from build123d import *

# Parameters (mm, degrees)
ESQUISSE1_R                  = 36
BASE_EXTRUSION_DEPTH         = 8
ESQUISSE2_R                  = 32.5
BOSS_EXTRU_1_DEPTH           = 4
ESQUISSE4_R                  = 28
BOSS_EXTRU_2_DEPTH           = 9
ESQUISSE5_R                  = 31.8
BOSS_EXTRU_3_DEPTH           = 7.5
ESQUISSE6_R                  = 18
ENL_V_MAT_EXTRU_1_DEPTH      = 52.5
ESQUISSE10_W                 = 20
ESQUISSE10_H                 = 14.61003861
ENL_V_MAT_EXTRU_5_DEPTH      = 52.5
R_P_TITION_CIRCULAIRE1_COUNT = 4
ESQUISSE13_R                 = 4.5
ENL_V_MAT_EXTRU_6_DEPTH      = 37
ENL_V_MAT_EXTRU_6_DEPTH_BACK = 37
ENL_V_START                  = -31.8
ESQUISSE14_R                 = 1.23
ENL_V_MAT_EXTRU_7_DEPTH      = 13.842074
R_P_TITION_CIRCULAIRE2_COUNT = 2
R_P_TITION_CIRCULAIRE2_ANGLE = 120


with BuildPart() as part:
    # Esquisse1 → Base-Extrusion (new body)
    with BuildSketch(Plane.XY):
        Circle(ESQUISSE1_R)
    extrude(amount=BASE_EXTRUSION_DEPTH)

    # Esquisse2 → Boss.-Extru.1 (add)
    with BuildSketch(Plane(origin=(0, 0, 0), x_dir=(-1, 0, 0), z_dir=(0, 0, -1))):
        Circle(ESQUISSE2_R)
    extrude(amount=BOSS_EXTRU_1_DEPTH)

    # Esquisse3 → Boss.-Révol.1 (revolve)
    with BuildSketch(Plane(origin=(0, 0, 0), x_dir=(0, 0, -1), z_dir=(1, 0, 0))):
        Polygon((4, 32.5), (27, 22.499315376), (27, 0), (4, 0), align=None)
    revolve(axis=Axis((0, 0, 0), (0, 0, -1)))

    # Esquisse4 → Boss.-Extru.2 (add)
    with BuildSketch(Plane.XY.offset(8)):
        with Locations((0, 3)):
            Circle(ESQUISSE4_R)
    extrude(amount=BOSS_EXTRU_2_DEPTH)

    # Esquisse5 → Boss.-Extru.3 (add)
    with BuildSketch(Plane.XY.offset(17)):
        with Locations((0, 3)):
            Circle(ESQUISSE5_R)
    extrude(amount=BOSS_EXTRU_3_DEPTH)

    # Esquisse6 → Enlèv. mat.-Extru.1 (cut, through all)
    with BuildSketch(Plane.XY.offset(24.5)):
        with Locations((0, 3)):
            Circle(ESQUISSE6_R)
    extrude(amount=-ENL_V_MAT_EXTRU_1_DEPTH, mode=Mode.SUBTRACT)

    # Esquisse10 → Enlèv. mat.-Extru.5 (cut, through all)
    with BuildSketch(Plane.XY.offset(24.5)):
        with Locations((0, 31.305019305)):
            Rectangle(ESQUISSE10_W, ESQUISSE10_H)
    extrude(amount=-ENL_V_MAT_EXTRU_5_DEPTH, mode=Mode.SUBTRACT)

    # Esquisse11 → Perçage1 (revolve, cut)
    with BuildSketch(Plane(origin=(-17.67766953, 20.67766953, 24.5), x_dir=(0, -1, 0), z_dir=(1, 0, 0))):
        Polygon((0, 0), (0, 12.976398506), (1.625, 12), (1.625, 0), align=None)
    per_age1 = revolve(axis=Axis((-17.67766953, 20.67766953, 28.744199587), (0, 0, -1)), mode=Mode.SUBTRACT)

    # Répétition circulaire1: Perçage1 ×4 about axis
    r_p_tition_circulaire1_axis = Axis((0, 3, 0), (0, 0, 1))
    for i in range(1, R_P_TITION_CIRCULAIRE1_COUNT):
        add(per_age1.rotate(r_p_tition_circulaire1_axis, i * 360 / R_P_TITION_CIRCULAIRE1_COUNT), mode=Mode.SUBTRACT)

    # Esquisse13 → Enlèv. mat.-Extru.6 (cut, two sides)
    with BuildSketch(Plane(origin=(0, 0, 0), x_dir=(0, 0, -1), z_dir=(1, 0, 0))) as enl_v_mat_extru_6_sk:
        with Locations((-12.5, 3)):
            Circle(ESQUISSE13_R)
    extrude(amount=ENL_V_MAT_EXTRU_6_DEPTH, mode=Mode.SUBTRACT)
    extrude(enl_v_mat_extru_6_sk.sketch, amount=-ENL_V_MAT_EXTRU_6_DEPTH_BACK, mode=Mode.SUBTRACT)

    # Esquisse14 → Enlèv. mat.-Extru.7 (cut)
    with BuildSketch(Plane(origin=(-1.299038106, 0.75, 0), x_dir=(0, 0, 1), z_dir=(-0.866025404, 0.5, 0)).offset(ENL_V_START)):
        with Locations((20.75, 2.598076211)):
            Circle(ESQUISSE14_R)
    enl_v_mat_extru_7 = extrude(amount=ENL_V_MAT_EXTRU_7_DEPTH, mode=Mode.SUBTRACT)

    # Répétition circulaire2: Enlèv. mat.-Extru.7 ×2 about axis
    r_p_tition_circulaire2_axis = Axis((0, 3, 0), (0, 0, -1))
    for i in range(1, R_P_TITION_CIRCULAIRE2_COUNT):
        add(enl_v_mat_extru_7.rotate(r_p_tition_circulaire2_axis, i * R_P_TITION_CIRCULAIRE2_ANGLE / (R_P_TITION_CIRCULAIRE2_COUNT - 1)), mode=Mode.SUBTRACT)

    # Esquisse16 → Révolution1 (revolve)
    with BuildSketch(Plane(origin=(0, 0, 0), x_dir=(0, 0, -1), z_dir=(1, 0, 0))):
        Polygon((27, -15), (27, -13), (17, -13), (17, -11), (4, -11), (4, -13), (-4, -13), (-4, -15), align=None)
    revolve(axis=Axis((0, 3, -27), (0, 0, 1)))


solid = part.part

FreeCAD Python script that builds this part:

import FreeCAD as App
import Part
import Sketcher

V = App.Vector
Q = App.Units.Quantity


def add_polygon(sketch, points):
    """Adds a closed chain of lines whose ends are joined by coincident constraints."""
    first, n = sketch.GeometryCount, len(points)
    for a, b in zip(points, points[1:] + points[:1]):
        sketch.addGeometry(Part.LineSegment(App.Vector(*a, 0), App.Vector(*b, 0)), False)
    for i in range(n):
        sketch.addConstraint(Sketcher.Constraint("Coincident", first + i, 2, first + (i + 1) % n, 1))

doc = App.newDocument("Part")
body = doc.addObject("PartDesign::Body", "Body")

# Sketch on XY plane
sketch1 = body.newObject("Sketcher::SketchObject", "Sketch")
sketch1.AttachmentSupport = (doc.getObject("XY_Plane"), [""])
sketch1.MapMode = "FlatFace"
sketch1.addGeometry(Part.Circle(V(0, 0, 0), V(0, 0, 1), 36), False)
sketch1.addConstraint([
    Sketcher.Constraint("Coincident", 0, 3, -1, 1),
    Sketcher.Constraint("Diameter", 0, 72.0),
])
pad1 = body.newObject("PartDesign::Pad", "Pad")
pad1.Profile = sketch1
pad1.Length = 8

# Sketch on XY plane
sketch2 = body.newObject("Sketcher::SketchObject", "Sketch001")
sketch2.AttachmentSupport = (doc.getObject("XY_Plane"), [""])
sketch2.MapMode = "FlatFace"
sketch2.addGeometry(Part.Circle(V(0, 0, 0), V(0, 0, 1), 32), False)
sketch2.addConstraint([
    Sketcher.Constraint("Coincident", 0, 3, -1, 1),
    Sketcher.Constraint("Diameter", 0, 65.0),
])
pad2 = body.newObject("PartDesign::Pad", "Pad001")
pad2.Profile = sketch2
pad2.Length = 4
pad2.Reversed = True

# Sketch on YZ plane
sketch3 = body.newObject("Sketcher::SketchObject", "Sketch002")
sketch3.AttachmentSupport = (doc.getObject("YZ_Plane"), [""])
sketch3.MapMode = "FlatFace"
add_polygon(sketch3, [(22, -27), (32, -4), (0, -4), (0, -27)])  # lines 0-3
sketch3.addConstraint([
    Sketcher.Constraint("Horizontal", 1),
    Sketcher.Constraint("Vertical", 2),
    Sketcher.Constraint("Horizontal", 3),
    Sketcher.Constraint("PointOnObject", 1, 2, -2),
    Sketcher.Constraint("DistanceY", 2, 2, 2, 1, 23.0),
    Sketcher.Constraint("DistanceX", 1, 2, 1, 1, 32.5),
    Sketcher.Constraint("DistanceY", 0, 2, -1, 1, 4.0),
    Sketcher.Constraint("Angle", 0, Q("66.5 deg")),
])
revolution = body.newObject("PartDesign::Revolution", "Revolution")
revolution.Profile = sketch3
revolution.ReferenceAxis = (sketch3, ["V_Axis"])
revolution.Angle = 360

# Sketch on XY plane
sketch4 = body.newObject("Sketcher::SketchObject", "Sketch003")
sketch4.AttachmentSupport = (doc.getObject("XY_Plane"), [""])
sketch4.MapMode = "FlatFace"
sketch4.AttachmentOffset = App.Placement(V(0, 0, 8), App.Rotation())
sketch4.addGeometry(Part.Circle(V(0, 3, 0), V(0, 0, 1), 28), False)
sketch4.addConstraint([
    Sketcher.Constraint("PointOnObject", 0, 3, -2),
    Sketcher.Constraint("Diameter", 0, 56.0),
    Sketcher.Constraint("DistanceY", -1, 1, 0, 3, 3.0),
])
pad3 = body.newObject("PartDesign::Pad", "Pad002")
pad3.Profile = sketch4
pad3.Length = 9

# Sketch on XY plane
sketch5 = body.newObject("Sketcher::SketchObject", "Sketch004")
sketch5.AttachmentSupport = (doc.getObject("XY_Plane"), [""])
sketch5.MapMode = "FlatFace"
sketch5.AttachmentOffset = App.Placement(V(0, 0, 17), App.Rotation())
sketch5.addGeometry(Part.Circle(V(0, 3, 0), V(0, 0, 1), 32), False)
sketch5.addConstraint([
    Sketcher.Constraint("PointOnObject", 0, 3, -2),
    Sketcher.Constraint("Diameter", 0, 63.6),
    Sketcher.Constraint("DistanceY", -1, 1, 0, 3, 3.0),
])
pad4 = body.newObject("PartDesign::Pad", "Pad003")
pad4.Profile = sketch5
pad4.Length = 7.5

# Sketch on XY plane
sketch6 = body.newObject("Sketcher::SketchObject", "Sketch005")
sketch6.AttachmentSupport = (doc.getObject("XY_Plane"), [""])
sketch6.MapMode = "FlatFace"
sketch6.AttachmentOffset = App.Placement(V(0, 0, 24.5), App.Rotation())
sketch6.addGeometry(Part.Circle(V(0, 3, 0), V(0, 0, 1), 18), False)
sketch6.addConstraint([
    Sketcher.Constraint("PointOnObject", 0, 3, -2),
    Sketcher.Constraint("Diameter", 0, 36.0),
    Sketcher.Constraint("DistanceY", -1, 1, 0, 3, 3.0),
])
pocket1 = body.newObject("PartDesign::Pocket", "Pocket")
pocket1.Profile = sketch6
pocket1.Type = "ThroughAll"

# Sketch on XY plane
sketch7 = body.newObject("Sketcher::SketchObject", "Sketch006")
sketch7.AttachmentSupport = (doc.getObject("XY_Plane"), [""])
sketch7.MapMode = "FlatFace"
sketch7.AttachmentOffset = App.Placement(V(0, 0, 24.5), App.Rotation())
add_polygon(sketch7, [(-10, 39), (-10, 24), (10, 24), (10, 39)])  # lines 0-3
sketch7.addConstraint([
    Sketcher.Constraint("Vertical", 0),
    Sketcher.Constraint("Horizontal", 1),
    Sketcher.Constraint("Vertical", 2),
    Sketcher.Constraint("Horizontal", 3),
    Sketcher.Constraint("DistanceX", 1, 1, 1, 2, 20.0),
    Sketcher.Constraint("DistanceX", 0, 2, -1, 1, 10.0),
    Sketcher.Constraint("DistanceY", -1, 1, 0, 2, 24.0),
    Sketcher.Constraint("DistanceY", 0, 2, 0, 1, 14.610039),
])
pocket2 = body.newObject("PartDesign::Pocket", "Pocket001")
pocket2.Profile = sketch7
pocket2.Type = "ThroughAll"

# Sketch on YZ plane
sketch8 = body.newObject("Sketcher::SketchObject", "Sketch007")
sketch8.AttachmentSupport = (doc.getObject("YZ_Plane"), [""])
sketch8.MapMode = "FlatFace"
sketch8.AttachmentOffset = App.Placement(V(0, 0, -17.67767), App.Rotation())
add_polygon(sketch8, [(20.7, 11.5), (20.7, 24.5), (19.1, 24.5), (19.1, 12.5)])  # lines 0-3
sketch8.addGeometry(Part.LineSegment(V(20.7, 24.5, 0), V(20.7, 11.5, 0)), True)  # axis
sketch8.addConstraint([
    Sketcher.Constraint("Vertical", 0),
    Sketcher.Constraint("Horizontal", 1),
    Sketcher.Constraint("Vertical", 2),
    Sketcher.Constraint("Vertical", 4),
    Sketcher.Constraint("Coincident", 4, 1, 0, 2),
    Sketcher.Constraint("Equal", 0, 4),
    Sketcher.Constraint("DistanceY", 2, 2, 2, 1, 12.0),
    Sketcher.Constraint("Angle", 3, Q("-31 deg")),
    Sketcher.Constraint("DistanceY", -1, 1, 0, 2, 24.5),
    Sketcher.Constraint("DistanceX", 1, 2, 1, 1, 1.625),
    Sketcher.Constraint("DistanceX", -1, 1, 0, 2, 20.67767),
])
groove = body.newObject("PartDesign::Groove", "Groove")
groove.Profile = sketch8
groove.ReferenceAxis = (sketch8, ["Axis0"])
groove.Angle = 360
doc.recompute()

datumline = body.newObject("PartDesign::Line", "DatumLine")
datumline.Placement = App.Placement(V(0, 3, 0), App.Rotation(V(0, 0, 1), V(0, 0, 1)))
polarpattern = body.newObject("PartDesign::PolarPattern", "PolarPattern")
polarpattern.Originals = [groove]
polarpattern.Axis = (datumline, [""])
polarpattern.Angle = 360
polarpattern.Occurrences = 4
body.Tip = polarpattern

# Sketch on YZ plane
sketch9 = body.newObject("Sketcher::SketchObject", "Sketch008")
sketch9.AttachmentSupport = (doc.getObject("YZ_Plane"), [""])
sketch9.MapMode = "FlatFace"
sketch9.addGeometry(Part.Circle(V(3, 12.5, 0), V(0, 0, 1), 4.5), False)
sketch9.addConstraint([
    Sketcher.Constraint("Diameter", 0, 9.0),
    Sketcher.Constraint("DistanceX", -1, 1, 0, 3, 3.0),
    Sketcher.Constraint("DistanceY", -1, 1, 0, 3, 12.5),
])
pocket3 = body.newObject("PartDesign::Pocket", "Pocket002")
pocket3.Profile = sketch9
pocket3.Type = "ThroughAll"
pocket3.Midplane = True

# Sketch on an angled plane
sketch10 = body.newObject("Sketcher::SketchObject", "Sketch009")
sketch10.Placement = App.Placement(V(26.24057, -15.15, 0), App.Rotation(V(0, 0, 1), V(0.5, 0.866025404, 0), V(-0.866025404, 0.5, 0), "ZXY"))
sketch10.addGeometry(Part.Circle(V(20.8, 2.6, 0), V(0, 0, 1), 1.2), False)
sketch10.addConstraint([
    Sketcher.Constraint("Diameter", 0, 2.46),
    Sketcher.Constraint("DistanceX", -1, 1, 0, 3, 20.75),
    Sketcher.Constraint("DistanceY", -1, 1, 0, 3, 2.598076),
])
pocket4 = body.newObject("PartDesign::Pocket", "Pocket003")
pocket4.Profile = sketch10
pocket4.Length = 13.842074
pocket4.Reversed = True
doc.recompute()

datumline2 = body.newObject("PartDesign::Line", "DatumLine001")
datumline2.Placement = App.Placement(V(0, 3, 0), App.Rotation(V(0, 0, 1), V(0, 0, -1)))
polarpattern2 = body.newObject("PartDesign::PolarPattern", "PolarPattern001")
polarpattern2.Originals = [pocket4]
polarpattern2.Axis = (datumline2, [""])
polarpattern2.Angle = 120
polarpattern2.Occurrences = 2
body.Tip = polarpattern2

# Sketch on YZ plane
sketch11 = body.newObject("Sketcher::SketchObject", "Sketch010")
sketch11.AttachmentSupport = (doc.getObject("YZ_Plane"), [""])
sketch11.MapMode = "FlatFace"
add_polygon(sketch11, [(-15, -27), (-13, -27), (-13, -17), (-11, -17), (-11, -4), (-13, -4), (-13, 4), (-15, 4)])  # lines 0-7
sketch11.addGeometry(Part.LineSegment(V(3, -27, 0), V(3, 4, 0)), True)  # axis
sketch11.addConstraint([
    Sketcher.Constraint("Horizontal", 0),
    Sketcher.Constraint("Vertical", 1),
    Sketcher.Constraint("Horizontal", 2),
    Sketcher.Constraint("Vertical", 3),
    Sketcher.Constraint("Horizontal", 4),
    Sketcher.Constraint("Vertical", 5),
    Sketcher.Constraint("Horizontal", 6),
    Sketcher.Constraint("Vertical", 7),
    Sketcher.Constraint("Vertical", 8),
    Sketcher.Constraint("Horizontal", 7, 2, 8, 1),
    Sketcher.Constraint("Horizontal", 6, 2, 8, 2),
    Sketcher.Constraint("Vertical", 1, 2, 4, 2),
    Sketcher.Constraint("Equal", 0, 2),
    Sketcher.Constraint("DistanceX", 0, 1, 0, 2, 2.0),
    Sketcher.Constraint("DistanceY", 1, 1, 1, 2, 10.0),
    Sketcher.Constraint("DistanceY", 3, 1, 3, 2, 13.0),
    Sketcher.Constraint("DistanceY", 5, 1, 5, 2, 8.0),
    Sketcher.Constraint("DistanceX", 0, 2, -1, 1, 13.0),
    Sketcher.Constraint("DistanceY", 0, 2, -1, 1, 27.0),
    Sketcher.Constraint("DistanceX", -1, 1, 8, 1, 3.0),
])
revolution2 = body.newObject("PartDesign::Revolution", "Revolution001")
revolution2.Profile = sketch11
revolution2.ReferenceAxis = (sketch11, ["Axis0"])
revolution2.Angle = 360

doc.recompute()
